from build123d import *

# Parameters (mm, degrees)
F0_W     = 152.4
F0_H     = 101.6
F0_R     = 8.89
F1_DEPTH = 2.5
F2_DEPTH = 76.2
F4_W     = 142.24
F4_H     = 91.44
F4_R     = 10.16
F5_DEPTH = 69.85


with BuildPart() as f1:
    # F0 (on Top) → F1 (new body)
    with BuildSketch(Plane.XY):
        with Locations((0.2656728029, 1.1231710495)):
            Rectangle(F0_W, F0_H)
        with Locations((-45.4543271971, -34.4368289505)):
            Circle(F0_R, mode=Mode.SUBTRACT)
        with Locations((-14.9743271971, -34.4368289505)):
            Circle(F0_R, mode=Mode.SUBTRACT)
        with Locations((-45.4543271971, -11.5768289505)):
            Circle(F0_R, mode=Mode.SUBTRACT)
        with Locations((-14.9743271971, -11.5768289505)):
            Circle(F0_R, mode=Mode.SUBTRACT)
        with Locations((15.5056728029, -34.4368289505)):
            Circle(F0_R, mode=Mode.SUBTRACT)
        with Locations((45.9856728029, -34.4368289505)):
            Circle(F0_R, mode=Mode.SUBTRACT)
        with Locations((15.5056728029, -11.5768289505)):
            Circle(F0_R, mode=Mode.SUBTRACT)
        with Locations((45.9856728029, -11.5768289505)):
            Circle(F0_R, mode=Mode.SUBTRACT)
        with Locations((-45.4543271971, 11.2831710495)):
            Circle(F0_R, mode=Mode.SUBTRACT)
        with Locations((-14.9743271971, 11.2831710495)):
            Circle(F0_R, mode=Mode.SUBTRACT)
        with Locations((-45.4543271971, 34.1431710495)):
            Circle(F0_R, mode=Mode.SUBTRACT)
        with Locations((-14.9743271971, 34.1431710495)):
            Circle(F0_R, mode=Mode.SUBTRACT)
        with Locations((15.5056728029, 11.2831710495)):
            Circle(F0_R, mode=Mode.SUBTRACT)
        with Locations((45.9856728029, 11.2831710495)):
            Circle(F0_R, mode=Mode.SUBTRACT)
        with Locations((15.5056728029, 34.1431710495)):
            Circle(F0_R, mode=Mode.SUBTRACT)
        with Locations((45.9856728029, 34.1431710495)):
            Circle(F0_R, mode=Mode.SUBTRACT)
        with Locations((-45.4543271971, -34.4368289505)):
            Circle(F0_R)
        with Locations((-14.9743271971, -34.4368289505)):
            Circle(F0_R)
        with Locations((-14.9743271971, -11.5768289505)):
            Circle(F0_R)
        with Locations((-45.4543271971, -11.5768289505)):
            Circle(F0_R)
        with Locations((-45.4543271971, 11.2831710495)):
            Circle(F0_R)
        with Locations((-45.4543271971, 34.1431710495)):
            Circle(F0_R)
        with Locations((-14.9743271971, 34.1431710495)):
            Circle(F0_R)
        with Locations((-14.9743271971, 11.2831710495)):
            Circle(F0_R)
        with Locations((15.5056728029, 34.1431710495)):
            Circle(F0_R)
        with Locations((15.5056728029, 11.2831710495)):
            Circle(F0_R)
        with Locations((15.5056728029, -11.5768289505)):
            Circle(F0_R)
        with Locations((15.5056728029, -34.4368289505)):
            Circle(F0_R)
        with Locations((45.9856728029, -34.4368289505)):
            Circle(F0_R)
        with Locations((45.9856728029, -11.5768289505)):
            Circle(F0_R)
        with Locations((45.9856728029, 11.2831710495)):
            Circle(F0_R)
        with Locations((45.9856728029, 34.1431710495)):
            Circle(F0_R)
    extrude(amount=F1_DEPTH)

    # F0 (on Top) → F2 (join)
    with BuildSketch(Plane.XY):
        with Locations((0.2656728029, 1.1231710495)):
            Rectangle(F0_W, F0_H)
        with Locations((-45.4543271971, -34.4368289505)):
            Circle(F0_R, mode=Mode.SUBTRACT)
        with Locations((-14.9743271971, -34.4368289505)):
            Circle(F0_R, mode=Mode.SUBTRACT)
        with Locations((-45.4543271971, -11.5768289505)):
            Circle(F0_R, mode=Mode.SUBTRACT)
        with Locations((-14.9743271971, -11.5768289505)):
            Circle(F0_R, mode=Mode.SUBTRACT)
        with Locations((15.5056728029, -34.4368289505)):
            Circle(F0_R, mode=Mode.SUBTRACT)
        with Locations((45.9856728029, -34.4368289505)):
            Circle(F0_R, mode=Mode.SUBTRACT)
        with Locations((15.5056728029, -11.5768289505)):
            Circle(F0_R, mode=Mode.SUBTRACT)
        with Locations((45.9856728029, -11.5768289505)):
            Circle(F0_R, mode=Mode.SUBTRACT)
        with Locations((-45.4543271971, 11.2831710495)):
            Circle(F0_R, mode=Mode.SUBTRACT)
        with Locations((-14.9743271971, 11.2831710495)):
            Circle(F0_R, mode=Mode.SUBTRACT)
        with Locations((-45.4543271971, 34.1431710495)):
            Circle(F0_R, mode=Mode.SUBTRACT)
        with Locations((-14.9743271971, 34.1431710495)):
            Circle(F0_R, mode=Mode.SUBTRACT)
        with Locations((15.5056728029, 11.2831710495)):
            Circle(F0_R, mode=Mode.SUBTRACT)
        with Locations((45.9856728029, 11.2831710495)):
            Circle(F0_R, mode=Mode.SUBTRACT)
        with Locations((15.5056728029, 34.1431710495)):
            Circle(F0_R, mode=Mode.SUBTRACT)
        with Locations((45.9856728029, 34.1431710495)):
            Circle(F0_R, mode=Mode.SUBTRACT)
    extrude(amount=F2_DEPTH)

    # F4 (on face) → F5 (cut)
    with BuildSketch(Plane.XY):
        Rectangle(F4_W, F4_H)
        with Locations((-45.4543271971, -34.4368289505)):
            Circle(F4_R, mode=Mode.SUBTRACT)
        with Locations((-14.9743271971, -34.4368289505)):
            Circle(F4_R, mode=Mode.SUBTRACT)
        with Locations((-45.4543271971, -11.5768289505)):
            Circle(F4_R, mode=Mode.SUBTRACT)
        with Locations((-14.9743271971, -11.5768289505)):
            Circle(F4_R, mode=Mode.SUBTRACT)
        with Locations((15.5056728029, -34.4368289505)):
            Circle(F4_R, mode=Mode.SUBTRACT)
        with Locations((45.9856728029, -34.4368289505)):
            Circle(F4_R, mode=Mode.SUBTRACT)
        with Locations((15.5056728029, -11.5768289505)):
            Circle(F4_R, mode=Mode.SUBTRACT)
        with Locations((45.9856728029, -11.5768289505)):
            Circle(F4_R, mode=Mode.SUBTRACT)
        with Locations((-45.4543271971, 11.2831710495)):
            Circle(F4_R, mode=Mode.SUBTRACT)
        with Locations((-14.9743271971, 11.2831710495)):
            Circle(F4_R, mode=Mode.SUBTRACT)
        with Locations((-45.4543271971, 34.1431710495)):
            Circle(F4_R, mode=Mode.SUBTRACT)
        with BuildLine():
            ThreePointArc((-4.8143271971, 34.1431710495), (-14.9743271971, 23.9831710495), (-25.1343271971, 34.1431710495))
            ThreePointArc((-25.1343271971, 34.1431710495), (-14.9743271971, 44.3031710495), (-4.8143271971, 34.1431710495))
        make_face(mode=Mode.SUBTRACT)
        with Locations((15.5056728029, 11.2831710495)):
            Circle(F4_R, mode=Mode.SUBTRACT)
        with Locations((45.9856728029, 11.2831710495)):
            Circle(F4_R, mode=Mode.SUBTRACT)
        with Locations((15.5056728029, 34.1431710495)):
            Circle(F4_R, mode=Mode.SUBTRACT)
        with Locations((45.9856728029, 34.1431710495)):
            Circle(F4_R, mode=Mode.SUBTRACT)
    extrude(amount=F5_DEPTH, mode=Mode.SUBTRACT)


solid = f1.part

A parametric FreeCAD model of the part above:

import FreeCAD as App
import Part
import Sketcher
from FreeCAD import Vector
Q = App.Units.Quantity

doc = App.newDocument("Part")
params = doc.addObject("Spreadsheet::Sheet", "Params")
for row, (alias, value) in enumerate([
    ("sketch1_width", "6 in"),
    ("sketch1_height", "4 in"),
    ("pad1_length", "2.5 mm"),
    ("sketch2_diameter", "0.7 in"),
    ("sketch2_width", "6 in"),
    ("sketch2_height", "4 in"),
    ("pad2_length", "3 in"),
    ("sketch3_diameter", "0.8 in"),
    ("sketch3_width", "5.6 in"),
    ("sketch3_height", "3.6 in"),
    ("pocket1_length", "2.75 in"),
], start=1):
    params.set(f"A{row}", alias)
    params.set(f"B{row}", "=" + value)
    params.setAlias(f"B{row}", alias)

body = doc.addObject("PartDesign::Body", "Body")

sketch1 = doc.addObject("Sketcher::SketchObject", "Sketch")
body.addObject(sketch1)
sketch1.AttachmentSupport = (doc.XY_Plane, [""])
sketch1.MapMode = "FlatFace"
sketch1.addGeometry(Part.LineSegment(Vector(-76, 52, 0), Vector(-76, -50, 0)), False)
sketch1.addGeometry(Part.LineSegment(Vector(-76, -50, 0), Vector(76, -50, 0)), False)
sketch1.addGeometry(Part.LineSegment(Vector(76, -50, 0), Vector(76, 52, 0)), False)
sketch1.addGeometry(Part.LineSegment(Vector(76, 52, 0), Vector(-76, 52, 0)), False)
sketch1.addConstraint(Sketcher.Constraint("Coincident", 0, 2, 1, 1))
sketch1.addConstraint(Sketcher.Constraint("Coincident", 1, 2, 2, 1))
sketch1.addConstraint(Sketcher.Constraint("Coincident", 2, 2, 3, 1))
sketch1.addConstraint(Sketcher.Constraint("Coincident", 3, 2, 0, 1))
sketch1.addConstraint(Sketcher.Constraint("Vertical", 0))
sketch1.addConstraint(Sketcher.Constraint("Horizontal", 1))
sketch1.addConstraint(Sketcher.Constraint("Vertical", 2))
sketch1.addConstraint(Sketcher.Constraint("Horizontal", 3))
sketch1.addConstraint(Sketcher.Constraint("DistanceX", 1, 1, 1, 2, Q("6 in")))
sketch1.addConstraint(Sketcher.Constraint("DistanceY", 0, 2, 0, 1, Q("4 in")))
sketch1.addConstraint(Sketcher.Constraint("DistanceY", 0, 2, -1, 1, Q("49.676829 mm")))
sketch1.addConstraint(Sketcher.Constraint("DistanceX", 0, 2, -1, 1, Q("75.934327 mm")))
sketch1.setExpression("Constraints[8]", "Params.sketch1_width")
sketch1.setExpression("Constraints[9]", "Params.sketch1_height")
pad1 = doc.addObject("PartDesign::Pad", "Pad")
body.addObject(pad1)
pad1.Profile = sketch1
pad1.setExpression("Length", "Params.pad1_length")

sketch2 = doc.addObject("Sketcher::SketchObject", "Sketch001")
body.addObject(sketch2)
sketch2.AttachmentSupport = (doc.XY_Plane, [""])
sketch2.MapMode = "FlatFace"
sketch2.addGeometry(Part.LineSegment(Vector(-76, 52, 0), Vector(-76, -50, 0)), False)
sketch2.addGeometry(Part.LineSegment(Vector(-76, -50, 0), Vector(76, -50, 0)), False)
sketch2.addGeometry(Part.LineSegment(Vector(76, -50, 0), Vector(76, 52, 0)), False)
sketch2.addGeometry(Part.LineSegment(Vector(76, 52, 0), Vector(-76, 52, 0)), False)
sketch2.addGeometry(Part.Circle(Vector(-45, -34, 0), Vector(0, 0, 1), 9), False)
sketch2.addGeometry(Part.Circle(Vector(-15, -34, 0), Vector(0, 0, 1), 9), False)
sketch2.addGeometry(Part.Circle(Vector(-45, -12, 0), Vector(0, 0, 1), 9), False)
sketch2.addGeometry(Part.Circle(Vector(-15, -12, 0), Vector(0, 0, 1), 9), False)
sketch2.addGeometry(Part.Circle(Vector(16, -34, 0), Vector(0, 0, 1), 9), False)
sketch2.addGeometry(Part.Circle(Vector(46, -34, 0), Vector(0, 0, 1), 9), False)
sketch2.addGeometry(Part.Circle(Vector(16, -12, 0), Vector(0, 0, 1), 9), False)
sketch2.addGeometry(Part.Circle(Vector(46, -12, 0), Vector(0, 0, 1), 9), False)
sketch2.addGeometry(Part.Circle(Vector(-45, 11, 0), Vector(0, 0, 1), 9), False)
sketch2.addGeometry(Part.Circle(Vector(-15, 11, 0), Vector(0, 0, 1), 9), False)
sketch2.addGeometry(Part.Circle(Vector(-45, 34, 0), Vector(0, 0, 1), 9), False)
sketch2.addGeometry(Part.Circle(Vector(-15, 34, 0), Vector(0, 0, 1), 9), False)
sketch2.addGeometry(Part.Circle(Vector(16, 11, 0), Vector(0, 0, 1), 9), False)
sketch2.addGeometry(Part.Circle(Vector(46, 11, 0), Vector(0, 0, 1), 9), False)
sketch2.addGeometry(Part.Circle(Vector(16, 34, 0), Vector(0, 0, 1), 9), False)
sketch2.addGeometry(Part.Circle(Vector(46, 34, 0), Vector(0, 0, 1), 9), False)
sketch2.addConstraint(Sketcher.Constraint("Coincident", 0, 2, 1, 1))
sketch2.addConstraint(Sketcher.Constraint("Coincident", 1, 2, 2, 1))
sketch2.addConstraint(Sketcher.Constraint("Coincident", 2, 2, 3, 1))
sketch2.addConstraint(Sketcher.Constraint("Coincident", 3, 2, 0, 1))
sketch2.addConstraint(Sketcher.Constraint("Vertical", 0))
sketch2.addConstraint(Sketcher.Constraint("Horizontal", 1))
sketch2.addConstraint(Sketcher.Constraint("Vertical", 2))
sketch2.addConstraint(Sketcher.Constraint("Horizontal", 3))
sketch2.addConstraint(Sketcher.Constraint("Equal", 4, 5))
sketch2.addConstraint(Sketcher.Constraint("Equal", 5, 6))
sketch2.addConstraint(Sketcher.Constraint("Equal", 6, 7))
sketch2.addConstraint(Sketcher.Constraint("Equal", 7, 8))
sketch2.addConstraint(Sketcher.Constraint("Equal", 8, 9))
sketch2.addConstraint(Sketcher.Constraint("Equal", 9, 10))
sketch2.addConstraint(Sketcher.Constraint("Equal", 10, 11))
sketch2.addConstraint(Sketcher.Constraint("Equal", 11, 12))
sketch2.addConstraint(Sketcher.Constraint("Equal", 12, 13))
sketch2.addConstraint(Sketcher.Constraint("Equal", 13, 14))
sketch2.addConstraint(Sketcher.Constraint("Equal", 14, 15))
sketch2.addConstraint(Sketcher.Constraint("Equal", 15, 16))
sketch2.addConstraint(Sketcher.Constraint("Equal", 16, 17))
sketch2.addConstraint(Sketcher.Constraint("Equal", 17, 18))
sketch2.addConstraint(Sketcher.Constraint("Equal", 18, 19))
sketch2.addConstraint(Sketcher.Constraint("Horizontal", 4, 3, 5, 3))
sketch2.addConstraint(Sketcher.Constraint("Horizontal", 6, 3, 7, 3))
sketch2.addConstraint(Sketcher.Constraint("Horizontal", 5, 3, 8, 3))
sketch2.addConstraint(Sketcher.Constraint("Horizontal", 8, 3, 9, 3))
sketch2.addConstraint(Sketcher.Constraint("Horizontal", 7, 3, 10, 3))
sketch2.addConstraint(Sketcher.Constraint("Horizontal", 10, 3, 11, 3))
sketch2.addConstraint(Sketcher.Constraint("Horizontal", 12, 3, 13, 3))
sketch2.addConstraint(Sketcher.Constraint("Horizontal", 14, 3, 15, 3))
sketch2.addConstraint(Sketcher.Constraint("Horizontal", 13, 3, 16, 3))
sketch2.addConstraint(Sketcher.Constraint("Horizontal", 16, 3, 17, 3))
sketch2.addConstraint(Sketcher.Constraint("Horizontal", 15, 3, 18, 3))
sketch2.addConstraint(Sketcher.Constraint("Horizontal", 18, 3, 19, 3))
sketch2.addConstraint(Sketcher.Constraint("Vertical", 4, 3, 6, 3))
sketch2.addConstraint(Sketcher.Constraint("Vertical", 5, 3, 7, 3))
sketch2.addConstraint(Sketcher.Constraint("Vertical", 8, 3, 10, 3))
sketch2.addConstraint(Sketcher.Constraint("Vertical", 9, 3, 11, 3))
sketch2.addConstraint(Sketcher.Constraint("Vertical", 6, 3, 12, 3))
sketch2.addConstraint(Sketcher.Constraint("Vertical", 7, 3, 13, 3))
sketch2.addConstraint(Sketcher.Constraint("Vertical", 12, 3, 14, 3))
sketch2.addConstraint(Sketcher.Constraint("Vertical", 13, 3, 15, 3))
sketch2.addConstraint(Sketcher.Constraint("Vertical", 10, 3, 16, 3))
sketch2.addConstraint(Sketcher.Constraint("Vertical", 11, 3, 17, 3))
sketch2.addConstraint(Sketcher.Constraint("Vertical", 16, 3, 18, 3))
sketch2.addConstraint(Sketcher.Constraint("Vertical", 17, 3, 19, 3))
sketch2.addConstraint(Sketcher.Constraint("Diameter", 4, Q("0.7 in")))
sketch2.addConstraint(Sketcher.Constraint("DistanceX", 1, 1, 1, 2, Q("6 in")))
sketch2.addConstraint(Sketcher.Constraint("DistanceY", 0, 2, 0, 1, Q("4 in")))
sketch2.addConstraint(Sketcher.Constraint("DistanceX", 4, 3, 5, 3, Q("1.2 in")))
sketch2.addConstraint(Sketcher.Constraint("DistanceY", 4, 3, 6, 3, Q("0.9 in")))
sketch2.addConstraint(Sketcher.Constraint("DistanceX", 5, 3, 8, 3, Q("1.2 in")))
sketch2.addConstraint(Sketcher.Constraint("DistanceX", 8, 3, 9, 3, Q("1.2 in")))
sketch2.addConstraint(Sketcher.Constraint("DistanceY", 6, 3, 12, 3, Q("0.9 in")))
sketch2.addConstraint(Sketcher.Constraint("DistanceY", 12, 3, 14, 3, Q("0.9 in")))
sketch2.addConstraint(Sketcher.Constraint("DistanceX", 0, 2, 4, 3, Q("1.2 in")))
sketch2.addConstraint(Sketcher.Constraint("DistanceY", 0, 2, 4, 3, Q("0.6 in")))
sketch2.addConstraint(Sketcher.Constraint("DistanceY", 4, 3, -1, 1, Q("34.436829 mm")))
sketch2.addConstraint(Sketcher.Constraint("DistanceX", 4, 3, -1, 1, Q("45.454327 mm")))
sketch2.setExpression("Constraints[47]", "Params.sketch2_diameter")
sketch2.setExpression("Constraints[48]", "Params.sketch2_width")
sketch2.setExpression("Constraints[49]", "Params.sketch2_height")
pad2 = doc.addObject("PartDesign::Pad", "Pad001")
body.addObject(pad2)
pad2.Profile = sketch2
pad2.setExpression("Length", "Params.pad2_length")

sketch3 = doc.addObject("Sketcher::SketchObject", "Sketch002")
body.addObject(sketch3)
sketch3.AttachmentSupport = (doc.XY_Plane, [""])
sketch3.MapMode = "FlatFace"
sketch3.addGeometry(Part.LineSegment(Vector(-71, 46, 0), Vector(-71, -46, 0)), False)
sketch3.addGeometry(Part.LineSegment(Vector(-71, -46, 0), Vector(71, -46, 0)), False)
sketch3.addGeometry(Part.LineSegment(Vector(71, -46, 0), Vector(71, 46, 0)), False)
sketch3.addGeometry(Part.LineSegment(Vector(71, 46, 0), Vector(-71, 46, 0)), False)
sketch3.addGeometry(Part.Circle(Vector(-45, -34, 0), Vector(0, 0, 1), 10), False)
sketch3.addGeometry(Part.Circle(Vector(-15, -34, 0), Vector(0, 0, 1), 10), False)
sketch3.addGeometry(Part.Circle(Vector(-45, -12, 0), Vector(0, 0, 1), 10), False)
sketch3.addGeometry(Part.Circle(Vector(-15, -12, 0), Vector(0, 0, 1), 10), False)
sketch3.addGeometry(Part.Circle(Vector(16, -34, 0), Vector(0, 0, 1), 10), False)
sketch3.addGeometry(Part.Circle(Vector(46, -34, 0), Vector(0, 0, 1), 10), False)
sketch3.addGeometry(Part.Circle(Vector(16, -12, 0), Vector(0, 0, 1), 10), False)
sketch3.addGeometry(Part.Circle(Vector(46, -12, 0), Vector(0, 0, 1), 10), False)
sketch3.addGeometry(Part.Circle(Vector(-45, 11, 0), Vector(0, 0, 1), 10), False)
sketch3.addGeometry(Part.Circle(Vector(-15, 11, 0), Vector(0, 0, 1), 10), False)
sketch3.addGeometry(Part.Circle(Vector(-45, 34, 0), Vector(0, 0, 1), 10), False)
sketch3.addGeometry(Part.Circle(Vector(-15, 34, 0), Vector(0, 0, 1), 10), False)
sketch3.addGeometry(Part.Circle(Vector(16, 11, 0), Vector(0, 0, 1), 10), False)
sketch3.addGeometry(Part.Circle(Vector(46, 11, 0), Vector(0, 0, 1), 10), False)
sketch3.addGeometry(Part.Circle(Vector(16, 34, 0), Vector(0, 0, 1), 10), False)
sketch3.addGeometry(Part.Circle(Vector(46, 34, 0), Vector(0, 0, 1), 10), False)
sketch3.addConstraint(Sketcher.Constraint("Coincident", 0, 2, 1, 1))
sketch3.addConstraint(Sketcher.Constraint("Coincident", 1, 2, 2, 1))
sketch3.addConstraint(Sketcher.Constraint("Coincident", 2, 2, 3, 1))
sketch3.addConstraint(Sketcher.Constraint("Coincident", 3, 2, 0, 1))
sketch3.addConstraint(Sketcher.Constraint("Vertical", 0))
sketch3.addConstraint(Sketcher.Constraint("Horizontal", 1))
sketch3.addConstraint(Sketcher.Constraint("Vertical", 2))
sketch3.addConstraint(Sketcher.Constraint("Horizontal", 3))
sketch3.addConstraint(Sketcher.Constraint("Equal", 4, 5))
sketch3.addConstraint(Sketcher.Constraint("Equal", 5, 6))
sketch3.addConstraint(Sketcher.Constraint("Equal", 6, 7))
sketch3.addConstraint(Sketcher.Constraint("Equal", 7, 8))
sketch3.addConstraint(Sketcher.Constraint("Equal", 8, 9))
sketch3.addConstraint(Sketcher.Constraint("Equal", 9, 10))
sketch3.addConstraint(Sketcher.Constraint("Equal", 10, 11))
sketch3.addConstraint(Sketcher.Constraint("Equal", 11, 12))
sketch3.addConstraint(Sketcher.Constraint("Equal", 12, 13))
sketch3.addConstraint(Sketcher.Constraint("Equal", 13, 14))
sketch3.addConstraint(Sketcher.Constraint("Equal", 14, 15))
sketch3.addConstraint(Sketcher.Constraint("Equal", 15, 16))
sketch3.addConstraint(Sketcher.Constraint("Equal", 16, 17))
sketch3.addConstraint(Sketcher.Constraint("Equal", 17, 18))
sketch3.addConstraint(Sketcher.Constraint("Equal", 18, 19))
sketch3.addConstraint(Sketcher.Constraint("Symmetric", 0, 2, 2, 2, -1, 1))
sketch3.addConstraint(Sketcher.Constraint("Horizontal", 4, 3, 5, 3))
sketch3.addConstraint(Sketcher.Constraint("Horizontal", 6, 3, 7, 3))
sketch3.addConstraint(Sketcher.Constraint("Horizontal", 5, 3, 8, 3))
sketch3.addConstraint(Sketcher.Constraint("Horizontal", 8, 3, 9, 3))
sketch3.addConstraint(Sketcher.Constraint("Horizontal", 7, 3, 10, 3))
sketch3.addConstraint(Sketcher.Constraint("Horizontal", 10, 3, 11, 3))
sketch3.addConstraint(Sketcher.Constraint("Horizontal", 12, 3, 13, 3))
sketch3.addConstraint(Sketcher.Constraint("Horizontal", 14, 3, 15, 3))
sketch3.addConstraint(Sketcher.Constraint("Horizontal", 13, 3, 16, 3))
sketch3.addConstraint(Sketcher.Constraint("Horizontal", 16, 3, 17, 3))
sketch3.addConstraint(Sketcher.Constraint("Horizontal", 15, 3, 18, 3))
sketch3.addConstraint(Sketcher.Constraint("Horizontal", 18, 3, 19, 3))
sketch3.addConstraint(Sketcher.Constraint("Vertical", 4, 3, 6, 3))
sketch3.addConstraint(Sketcher.Constraint("Vertical", 5, 3, 7, 3))
sketch3.addConstraint(Sketcher.Constraint("Vertical", 8, 3, 10, 3))
sketch3.addConstraint(Sketcher.Constraint("Vertical", 9, 3, 11, 3))
sketch3.addConstraint(Sketcher.Constraint("Vertical", 6, 3, 12, 3))
sketch3.addConstraint(Sketcher.Constraint("Vertical", 7, 3, 13, 3))
sketch3.addConstraint(Sketcher.Constraint("Vertical", 12, 3, 14, 3))
sketch3.addConstraint(Sketcher.Constraint("Vertical", 13, 3, 15, 3))
sketch3.addConstraint(Sketcher.Constraint("Vertical", 10, 3, 16, 3))
sketch3.addConstraint(Sketcher.Constraint("Vertical", 11, 3, 17, 3))
sketch3.addConstraint(Sketcher.Constraint("Vertical", 16, 3, 18, 3))
sketch3.addConstraint(Sketcher.Constraint("Vertical", 17, 3, 19, 3))
sketch3.addConstraint(Sketcher.Constraint("Diameter", 4, Q("0.8 in")))
sketch3.addConstraint(Sketcher.Constraint("DistanceX", 1, 1, 1, 2, Q("5.6 in")))
sketch3.addConstraint(Sketcher.Constraint("DistanceY", 0, 2, 0, 1, Q("3.6 in")))
sketch3.addConstraint(Sketcher.Constraint("DistanceX", 4, 3, 5, 3, Q("1.2 in")))
sketch3.addConstraint(Sketcher.Constraint("DistanceY", 4, 3, 6, 3, Q("0.9 in")))
sketch3.addConstraint(Sketcher.Constraint("DistanceX", 5, 3, 8, 3, Q("1.2 in")))
sketch3.addConstraint(Sketcher.Constraint("DistanceX", 8, 3, 9, 3, Q("1.2 in")))
sketch3.addConstraint(Sketcher.Constraint("DistanceY", 6, 3, 12, 3, Q("0.9 in")))
sketch3.addConstraint(Sketcher.Constraint("DistanceY", 12, 3, 14, 3, Q("0.9 in")))
sketch3.addConstraint(Sketcher.Constraint("DistanceY", 4, 3, -1, 1, Q("34.436829 mm")))
sketch3.addConstraint(Sketcher.Constraint("DistanceX", 4, 3, -1, 1, Q("45.454327 mm")))
sketch3.setExpression("Constraints[48]", "Params.sketch3_diameter")
sketch3.setExpression("Constraints[49]", "Params.sketch3_width")
sketch3.setExpression("Constraints[50]", "Params.sketch3_height")
pocket1 = doc.addObject("PartDesign::Pocket", "Pocket")
body.addObject(pocket1)
pocket1.Profile = sketch3
pocket1.setExpression("Length", "Params.pocket1_length")
pocket1.Reversed = True

doc.recompute()
